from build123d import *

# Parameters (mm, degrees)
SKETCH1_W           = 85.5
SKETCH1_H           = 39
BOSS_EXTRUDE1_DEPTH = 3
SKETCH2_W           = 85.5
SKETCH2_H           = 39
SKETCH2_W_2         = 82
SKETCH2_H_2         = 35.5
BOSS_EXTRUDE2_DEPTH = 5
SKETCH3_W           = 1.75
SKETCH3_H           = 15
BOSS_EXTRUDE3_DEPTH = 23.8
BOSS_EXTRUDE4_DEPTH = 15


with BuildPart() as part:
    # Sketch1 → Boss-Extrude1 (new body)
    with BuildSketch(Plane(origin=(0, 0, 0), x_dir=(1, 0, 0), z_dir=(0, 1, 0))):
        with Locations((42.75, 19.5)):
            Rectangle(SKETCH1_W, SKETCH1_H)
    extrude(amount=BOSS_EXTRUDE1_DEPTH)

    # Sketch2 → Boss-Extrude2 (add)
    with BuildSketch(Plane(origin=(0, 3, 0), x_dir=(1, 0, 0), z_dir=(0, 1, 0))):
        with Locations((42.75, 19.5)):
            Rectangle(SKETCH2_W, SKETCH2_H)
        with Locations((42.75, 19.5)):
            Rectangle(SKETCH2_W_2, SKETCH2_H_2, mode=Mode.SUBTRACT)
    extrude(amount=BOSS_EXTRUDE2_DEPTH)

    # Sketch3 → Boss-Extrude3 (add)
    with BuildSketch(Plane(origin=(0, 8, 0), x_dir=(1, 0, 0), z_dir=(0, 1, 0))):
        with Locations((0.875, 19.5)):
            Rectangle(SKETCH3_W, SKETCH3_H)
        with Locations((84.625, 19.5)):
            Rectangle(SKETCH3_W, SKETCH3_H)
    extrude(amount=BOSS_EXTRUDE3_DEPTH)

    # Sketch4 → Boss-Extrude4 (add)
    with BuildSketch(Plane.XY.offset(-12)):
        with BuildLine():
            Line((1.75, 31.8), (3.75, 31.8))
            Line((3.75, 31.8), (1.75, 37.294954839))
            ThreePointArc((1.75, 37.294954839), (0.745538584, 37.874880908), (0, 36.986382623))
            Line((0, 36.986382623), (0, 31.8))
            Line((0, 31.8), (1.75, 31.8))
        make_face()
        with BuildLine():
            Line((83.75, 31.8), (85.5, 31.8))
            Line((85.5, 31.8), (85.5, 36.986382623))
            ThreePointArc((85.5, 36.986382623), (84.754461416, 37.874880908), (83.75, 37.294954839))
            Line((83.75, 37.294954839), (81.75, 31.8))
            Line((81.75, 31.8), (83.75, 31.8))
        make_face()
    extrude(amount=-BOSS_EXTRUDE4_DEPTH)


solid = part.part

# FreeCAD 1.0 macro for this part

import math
import FreeCAD as App
import Part
import Sketcher

V = App.Vector
Q = App.Units.Quantity


def add_polygon(sketch, points):
    """Adds a closed chain of lines whose ends are joined by coincident constraints."""
    first, n = sketch.GeometryCount, len(points)
    for a, b in zip(points, points[1:] + points[:1]):
        sketch.addGeometry(Part.LineSegment(App.Vector(*a, 0), App.Vector(*b, 0)), False)
    for i in range(n):
        sketch.addConstraint(Sketcher.Constraint("Coincident", first + i, 2, first + (i + 1) % n, 1))

doc = App.newDocument("Part")
body = doc.addObject("PartDesign::Body", "Body")

# Sketch on XZ plane
sketch1 = body.newObject("Sketcher::SketchObject", "Sketch")
sketch1.AttachmentSupport = (doc.getObject("XZ_Plane"), [""])
sketch1.MapMode = "FlatFace"
add_polygon(sketch1, [(0, -39), (0, 0), (85.5, 0), (85.5, -39)])  # lines 0-3
sketch1.addConstraint(Sketcher.Constraint("Vertical", 0))
sketch1.addConstraint(Sketcher.Constraint("Horizontal", 1))
sketch1.addConstraint(Sketcher.Constraint("Vertical", 2))
sketch1.addConstraint(Sketcher.Constraint("Horizontal", 3))
sketch1.addConstraint(Sketcher.Constraint("Coincident", 0, 2, -1, 1))
sketch1.addConstraint(Sketcher.Constraint("DistanceY", 0, 1, 0, 2, Q("39 mm")))
sketch1.addConstraint(Sketcher.Constraint("DistanceX", 1, 1, 1, 2, Q("85.5 mm")))
pad1 = body.newObject("PartDesign::Pad", "Pad")
pad1.Profile = sketch1
pad1.Length = 3
pad1.Reversed = True

# Sketch on XZ plane
sketch2 = body.newObject("Sketcher::SketchObject", "Sketch001")
sketch2.AttachmentSupport = (doc.getObject("XZ_Plane"), [""])
sketch2.MapMode = "FlatFace"
sketch2.AttachmentOffset = App.Placement(V(0, 0, -3), App.Rotation())
add_polygon(sketch2, [(0, -39), (0, 0), (85.5, 0), (85.5, -39)])  # lines 0-3
add_polygon(sketch2, [(83.75, -1.75), (1.75, -1.75), (1.75, -37.25), (83.75, -37.25)])  # lines 4-7
sketch2.addConstraint(Sketcher.Constraint("Vertical", 0))
sketch2.addConstraint(Sketcher.Constraint("Horizontal", 1))
sketch2.addConstraint(Sketcher.Constraint("Vertical", 2))
sketch2.addConstraint(Sketcher.Constraint("Horizontal", 3))
sketch2.addConstraint(Sketcher.Constraint("Horizontal", 4))
sketch2.addConstraint(Sketcher.Constraint("Vertical", 5))
sketch2.addConstraint(Sketcher.Constraint("Horizontal", 6))
sketch2.addConstraint(Sketcher.Constraint("Vertical", 7))
sketch2.addConstraint(Sketcher.Constraint("Coincident", 0, 2, -1, 1))
sketch2.addConstraint(Sketcher.Constraint("DistanceX", 4, 2, 4, 1, Q("82 mm")))
sketch2.addConstraint(Sketcher.Constraint("DistanceY", 0, 1, 0, 2, Q("39 mm")))
sketch2.addConstraint(Sketcher.Constraint("DistanceX", 1, 1, 1, 2, Q("85.5 mm")))
sketch2.addConstraint(Sketcher.Constraint("DistanceY", 5, 2, 5, 1, Q("35.5 mm")))
sketch2.addConstraint(Sketcher.Constraint("DistanceX", -1, 1, 4, 2, Q("1.75 mm")))
sketch2.addConstraint(Sketcher.Constraint("DistanceY", 4, 2, -1, 1, Q("1.75 mm")))
pad2 = body.newObject("PartDesign::Pad", "Pad001")
pad2.Profile = sketch2
pad2.Length = 5
pad2.Reversed = True

# Sketch on XZ plane
sketch3 = body.newObject("Sketcher::SketchObject", "Sketch002")
sketch3.AttachmentSupport = (doc.getObject("XZ_Plane"), [""])
sketch3.MapMode = "FlatFace"
sketch3.AttachmentOffset = App.Placement(V(0, 0, -8), App.Rotation())
add_polygon(sketch3, [(0, -27), (0, -12), (1.75, -12), (1.75, -27)])  # lines 0-3
add_polygon(sketch3, [(83.75, -27), (83.75, -12), (85.5, -12), (85.5, -27)])  # lines 4-7
sketch3.addConstraint(Sketcher.Constraint("Vertical", 0))
sketch3.addConstraint(Sketcher.Constraint("Horizontal", 1))
sketch3.addConstraint(Sketcher.Constraint("Vertical", 2))
sketch3.addConstraint(Sketcher.Constraint("Horizontal", 3))
sketch3.addConstraint(Sketcher.Constraint("Vertical", 4))
sketch3.addConstraint(Sketcher.Constraint("Horizontal", 5))
sketch3.addConstraint(Sketcher.Constraint("Vertical", 6))
sketch3.addConstraint(Sketcher.Constraint("Horizontal", 7))
sketch3.addConstraint(Sketcher.Constraint("PointOnObject", 0, 2, -2))
sketch3.addConstraint(Sketcher.Constraint("Horizontal", 1, 2, 4, 2))
sketch3.addConstraint(Sketcher.Constraint("Horizontal", 3, 2, 6, 2))
sketch3.addConstraint(Sketcher.Constraint("Equal", 3, 5))
sketch3.addConstraint(Sketcher.Constraint("DistanceY", 0, 1, 0, 2, Q("15 mm")))
sketch3.addConstraint(Sketcher.Constraint("DistanceY", 0, 2, -1, 1, Q("12 mm")))
sketch3.addConstraint(Sketcher.Constraint("DistanceX", 1, 2, 4, 2, Q("82 mm")))
sketch3.addConstraint(Sketcher.Constraint("DistanceX", 1, 1, 1, 2, Q("1.75 mm")))
pad3 = body.newObject("PartDesign::Pad", "Pad002")
pad3.Profile = sketch3
pad3.Length = 23.8
pad3.Reversed = True

# Sketch on XY plane
sketch4 = body.newObject("Sketcher::SketchObject", "Sketch003")
sketch4.AttachmentSupport = (doc.getObject("XY_Plane"), [""])
sketch4.MapMode = "FlatFace"
sketch4.AttachmentOffset = App.Placement(V(0, 0, -12), App.Rotation())
sketch4.addGeometry(Part.LineSegment(V(3.75, 31.8, 0), V(1.75, 37.294955, 0)), False)
sketch4.addGeometry(Part.ArcOfCircle(Part.Circle(V(0.902205, 36.986383, 0), V(0, 0, 1), 0.902205), math.radians(20), math.radians(180)), False)
sketch4.addGeometry(Part.LineSegment(V(0, 36.986383, 0), V(0, 31.8, 0)), False)
sketch4.addGeometry(Part.LineSegment(V(0, 31.8, 0), V(3.75, 31.8, 0)), False)
sketch4.addGeometry(Part.LineSegment(V(85.5, 31.8, 0), V(85.5, 36.986383, 0)), False)
sketch4.addGeometry(Part.ArcOfCircle(Part.Circle(V(84.597795, 36.986383, 0), V(0, 0, 1), 0.902205), math.radians(0), math.radians(160)), False)
sketch4.addGeometry(Part.LineSegment(V(83.75, 37.294955, 0), V(81.75, 31.8, 0)), False)
sketch4.addGeometry(Part.LineSegment(V(81.75, 31.8, 0), V(85.5, 31.8, 0)), False)
sketch4.addConstraint(Sketcher.Constraint("Tangent", 0, 2, 1, 1))
sketch4.addConstraint(Sketcher.Constraint("Tangent", 1, 2, 2, 1))
sketch4.addConstraint(Sketcher.Constraint("Coincident", 2, 2, 3, 1))
sketch4.addConstraint(Sketcher.Constraint("Coincident", 3, 2, 0, 1))
sketch4.addConstraint(Sketcher.Constraint("Tangent", 4, 2, 5, 1))
sketch4.addConstraint(Sketcher.Constraint("Tangent", 5, 2, 6, 1))
sketch4.addConstraint(Sketcher.Constraint("Coincident", 6, 2, 7, 1))
sketch4.addConstraint(Sketcher.Constraint("Coincident", 7, 2, 4, 1))
sketch4.addConstraint(Sketcher.Constraint("Vertical", 2))
sketch4.addConstraint(Sketcher.Constraint("Horizontal", 3))
sketch4.addConstraint(Sketcher.Constraint("Vertical", 4))
sketch4.addConstraint(Sketcher.Constraint("Horizontal", 7))
sketch4.addConstraint(Sketcher.Constraint("Equal", 1, 5))
sketch4.addConstraint(Sketcher.Constraint("PointOnObject", 1, 2, -2))
sketch4.addConstraint(Sketcher.Constraint("Horizontal", 1, 3, 5, 3))
sketch4.addConstraint(Sketcher.Constraint("Horizontal", 0, 2, 5, 2))
sketch4.addConstraint(Sketcher.Constraint("Horizontal", 3, 2, 6, 2))
sketch4.addConstraint(Sketcher.Constraint("Angle", 0, Q("110 deg")))
sketch4.addConstraint(Sketcher.Constraint("DistanceX", 0, 2, 3, 2, Q("2 mm")))
sketch4.addConstraint(Sketcher.Constraint("DistanceX", 3, 2, 5, 2, Q("80 mm")))
sketch4.addConstraint(Sketcher.Constraint("DistanceX", 3, 1, 3, 2, Q("3.75 mm")))
sketch4.addConstraint(Sketcher.Constraint("DistanceY", -1, 1, 2, 2, Q("31.8 mm")))
pad4 = body.newObject("PartDesign::Pad", "Pad003")
pad4.Profile = sketch4
pad4.Length = 15
pad4.Reversed = True

doc.recompute()
